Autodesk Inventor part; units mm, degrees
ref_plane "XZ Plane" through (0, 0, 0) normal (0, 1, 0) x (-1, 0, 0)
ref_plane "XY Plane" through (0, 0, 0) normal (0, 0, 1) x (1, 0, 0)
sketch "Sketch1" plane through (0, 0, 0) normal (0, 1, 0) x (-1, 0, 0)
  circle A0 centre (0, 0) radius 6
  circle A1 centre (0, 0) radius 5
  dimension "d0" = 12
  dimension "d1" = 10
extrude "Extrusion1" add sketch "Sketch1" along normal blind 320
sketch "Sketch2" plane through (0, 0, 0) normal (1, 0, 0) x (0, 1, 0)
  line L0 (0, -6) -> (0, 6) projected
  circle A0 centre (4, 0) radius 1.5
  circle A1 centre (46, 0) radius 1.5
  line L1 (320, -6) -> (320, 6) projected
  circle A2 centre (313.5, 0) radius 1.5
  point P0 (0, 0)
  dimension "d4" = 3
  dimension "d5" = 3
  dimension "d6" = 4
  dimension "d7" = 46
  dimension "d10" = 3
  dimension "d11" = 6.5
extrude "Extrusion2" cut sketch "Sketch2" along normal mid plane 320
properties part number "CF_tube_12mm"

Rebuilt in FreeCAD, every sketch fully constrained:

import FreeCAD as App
import Part
import Sketcher

doc = App.newDocument("Part")
params = doc.addObject("Spreadsheet::Sheet", "Params")
for row, (alias, value) in enumerate([
    ("sketch1_diameter", "12 mm"),
    ("sketch1_diameter2", "10 mm"),
    ("pad1_length", "320 mm"),
    ("sketch2_diameter", "3 mm"),
    ("pocket1_length", "320 mm"),
], start=1):
    params.set(f"A{row}", alias)
    params.set(f"B{row}", "=" + value)
    params.setAlias(f"B{row}", alias)

body = doc.addObject("PartDesign::Body", "Body")

sketch1 = doc.addObject("Sketcher::SketchObject", "Sketch")
body.addObject(sketch1)
sketch1.AttachmentSupport = (doc.XZ_Plane, [""])
sketch1.MapMode = "FlatFace"
sketch1.addGeometry([
    Part.Circle(App.Vector(0, 0, 0), App.Vector(0, 0, 1), 6),
    Part.Circle(App.Vector(0, 0, 0), App.Vector(0, 0, 1), 5),
], False)
sketch1.addConstraint([
    Sketcher.Constraint("Coincident", 0, 3, -1, 1),
    Sketcher.Constraint("Coincident", 1, 3, -1, 1),
    Sketcher.Constraint("Diameter", 0, 12.0),
    Sketcher.Constraint("Diameter", 1, 10.0),
])
sketch1.setExpression("Constraints[2]", "Params.sketch1_diameter")
sketch1.setExpression("Constraints[3]", "Params.sketch1_diameter2")
pad1 = doc.addObject("PartDesign::Pad", "Pad")
body.addObject(pad1)
pad1.Profile = sketch1
pad1.setExpression("Length", "Params.pad1_length")
pad1.Reversed = True

sketch2 = doc.addObject("Sketcher::SketchObject", "Sketch001")
body.addObject(sketch2)
sketch2.AttachmentSupport = (doc.YZ_Plane, [""])
sketch2.MapMode = "FlatFace"
sketch2.addGeometry([
    Part.Circle(App.Vector(4, 0, 0), App.Vector(0, 0, 1), 1.5),
    Part.Circle(App.Vector(46, 0, 0), App.Vector(0, 0, 1), 1.5),
    Part.Circle(App.Vector(313.5, 0, 0), App.Vector(0, 0, 1), 1.5),
], False)
sketch2.addConstraint([
    Sketcher.Constraint("Equal", 0, 1),
    Sketcher.Constraint("Equal", 1, 2),
    Sketcher.Constraint("PointOnObject", 0, 3, -1),
    Sketcher.Constraint("PointOnObject", 1, 3, -1),
    Sketcher.Constraint("PointOnObject", 2, 3, -1),
    Sketcher.Constraint("Diameter", 0, 3.0),
    Sketcher.Constraint("DistanceX", -1, 1, 0, 3, 4.0),
    Sketcher.Constraint("DistanceX", -1, 1, 1, 3, 46.0),
    Sketcher.Constraint("DistanceX", -1, 1, 2, 3, 313.5),
])
sketch2.setExpression("Constraints[5]", "Params.sketch2_diameter")
pocket1 = doc.addObject("PartDesign::Pocket", "Pocket")
body.addObject(pocket1)
pocket1.Profile = sketch2
pocket1.setExpression("Length", "Params.pocket1_length")
pocket1.Midplane = True

doc.recompute()
